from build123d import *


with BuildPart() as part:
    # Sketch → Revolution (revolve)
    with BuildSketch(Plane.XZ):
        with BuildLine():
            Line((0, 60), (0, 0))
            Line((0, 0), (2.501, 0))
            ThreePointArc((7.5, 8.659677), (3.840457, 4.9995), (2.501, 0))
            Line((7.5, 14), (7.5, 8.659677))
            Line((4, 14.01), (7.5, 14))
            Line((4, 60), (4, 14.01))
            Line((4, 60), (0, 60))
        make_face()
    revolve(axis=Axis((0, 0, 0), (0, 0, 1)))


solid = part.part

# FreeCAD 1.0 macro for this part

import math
import FreeCAD as App
import Part
import Sketcher
from FreeCAD import Vector
Q = App.Units.Quantity

doc = App.newDocument("Part")
body = doc.addObject("PartDesign::Body", "Body")

sketch1 = doc.addObject("Sketcher::SketchObject", "Sketch")
body.addObject(sketch1)
sketch1.AttachmentSupport = (doc.XZ_Plane, [""])
sketch1.MapMode = "FlatFace"
sketch1.addGeometry([
    Part.LineSegment(Vector(0, 60, 0), Vector(0, 0, 0)),
    Part.LineSegment(Vector(0, 0, 0), Vector(2.501, 0, 0)),
    Part.ArcOfCircle(Part.Circle(Vector(12.501, 0.000001, 0), Vector(0, 0, 1), 10), math.radians(120.006615), math.radians(180.000004)),
    Part.LineSegment(Vector(7.5, 8.659677, 0), Vector(7.5, 14, 0)),
    Part.LineSegment(Vector(7.5, 14, 0), Vector(4, 14.01, 0)),
    Part.LineSegment(Vector(4, 14.01, 0), Vector(4, 60, 0)),
    Part.LineSegment(Vector(4, 60, 0), Vector(0, 60, 0)),
], False)
sketch1.addConstraint([
    Sketcher.Constraint("Coincident", 0, 2, 1, 1),
    Sketcher.Constraint("Coincident", 1, 2, 2, 2),
    Sketcher.Constraint("Coincident", 2, 1, 3, 1),
    Sketcher.Constraint("Coincident", 3, 2, 4, 1),
    Sketcher.Constraint("Coincident", 4, 2, 5, 1),
    Sketcher.Constraint("Coincident", 5, 2, 6, 1),
    Sketcher.Constraint("Coincident", 6, 2, 0, 1),
    Sketcher.Constraint("Vertical", 0),
    Sketcher.Constraint("Horizontal", 1),
    Sketcher.Constraint("Vertical", 3),
    Sketcher.Constraint("Vertical", 5),
    Sketcher.Constraint("Horizontal", 6),
    Sketcher.Constraint("Coincident", 0, 2, -1, 1),
    Sketcher.Constraint("PointOnObject", 2, 3, -1),
    Sketcher.Constraint("Radius", 2, Q("10 mm")),
    Sketcher.Constraint("DistanceX", 6, 2, 6, 1, Q("4 mm")),
    Sketcher.Constraint("DistanceY", 0, 2, 0, 1, Q("60 mm")),
    Sketcher.Constraint("DistanceY", -1, 1, 3, 2, Q("14 mm")),
    Sketcher.Constraint("DistanceY", 5, 1, 5, 2, Q("45.99 mm")),
    Sketcher.Constraint("DistanceX", -1, 1, 2, 1, Q("7.5 mm")),
    Sketcher.Constraint("DistanceX", 1, 1, 1, 2, Q("2.501 mm")),
])
revolution = doc.addObject("PartDesign::Revolution", "Revolution")
body.addObject(revolution)
revolution.Profile = sketch1
revolution.ReferenceAxis = (sketch1, ["V_Axis"])
revolution.Angle = 360

doc.recompute()
